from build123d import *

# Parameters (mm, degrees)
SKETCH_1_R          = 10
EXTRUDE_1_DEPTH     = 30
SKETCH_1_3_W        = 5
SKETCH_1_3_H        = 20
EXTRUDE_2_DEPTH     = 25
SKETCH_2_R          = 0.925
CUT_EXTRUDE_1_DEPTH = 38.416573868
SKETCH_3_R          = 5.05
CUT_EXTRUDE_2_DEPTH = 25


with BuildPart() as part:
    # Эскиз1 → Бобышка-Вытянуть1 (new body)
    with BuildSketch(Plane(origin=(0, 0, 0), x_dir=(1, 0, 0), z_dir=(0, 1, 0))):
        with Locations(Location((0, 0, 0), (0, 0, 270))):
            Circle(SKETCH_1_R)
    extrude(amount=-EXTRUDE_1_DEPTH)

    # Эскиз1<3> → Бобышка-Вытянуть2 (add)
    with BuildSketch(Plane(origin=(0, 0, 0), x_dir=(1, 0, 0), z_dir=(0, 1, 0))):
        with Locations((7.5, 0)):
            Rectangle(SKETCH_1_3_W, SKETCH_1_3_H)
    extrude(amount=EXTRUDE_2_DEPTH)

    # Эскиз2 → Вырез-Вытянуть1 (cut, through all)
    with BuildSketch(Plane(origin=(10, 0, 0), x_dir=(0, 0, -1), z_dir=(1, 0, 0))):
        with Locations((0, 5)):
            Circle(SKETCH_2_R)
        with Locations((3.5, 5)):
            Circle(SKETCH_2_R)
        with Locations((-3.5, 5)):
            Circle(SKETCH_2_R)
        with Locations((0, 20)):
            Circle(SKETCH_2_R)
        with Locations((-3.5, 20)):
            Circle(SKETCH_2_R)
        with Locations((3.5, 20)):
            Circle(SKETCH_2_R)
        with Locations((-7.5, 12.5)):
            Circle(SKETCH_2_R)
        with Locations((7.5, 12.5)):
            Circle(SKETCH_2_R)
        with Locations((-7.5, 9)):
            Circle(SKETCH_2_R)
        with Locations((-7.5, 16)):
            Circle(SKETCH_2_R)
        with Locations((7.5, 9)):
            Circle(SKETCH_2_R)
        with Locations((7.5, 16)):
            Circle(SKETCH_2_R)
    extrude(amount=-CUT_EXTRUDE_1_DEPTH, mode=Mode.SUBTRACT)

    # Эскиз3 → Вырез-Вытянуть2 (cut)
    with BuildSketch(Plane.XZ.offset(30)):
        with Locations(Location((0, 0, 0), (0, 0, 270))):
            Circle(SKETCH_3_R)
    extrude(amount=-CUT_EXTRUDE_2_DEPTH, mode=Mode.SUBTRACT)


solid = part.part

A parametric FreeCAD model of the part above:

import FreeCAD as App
import Part
import Sketcher

doc = App.newDocument("Part")
body = doc.addObject("PartDesign::Body", "Body")

# Sketch on XZ plane
sketch1 = body.newObject("Sketcher::SketchObject", "Sketch")
sketch1.AttachmentSupport = (doc.getObject("XZ_Plane"), [""])
sketch1.MapMode = "FlatFace"
sketch1.addGeometry(Part.Circle(App.Vector(0, 0, 0), App.Vector(0, 0, 1), 10), False)
sketch1.addConstraint(Sketcher.Constraint("Coincident", 0, 3, -1, 1))
sketch1.addConstraint(Sketcher.Constraint("Diameter", 0, 20.0))
pad1 = body.newObject("PartDesign::Pad", "Pad")
pad1.Profile = sketch1
pad1.Length = 30

# Sketch on XZ plane
sketch2 = body.newObject("Sketcher::SketchObject", "Sketch001")
sketch2.AttachmentSupport = (doc.getObject("XZ_Plane"), [""])
sketch2.MapMode = "FlatFace"
sketch2.addGeometry(Part.LineSegment(App.Vector(5, -10, 0), App.Vector(5, 10, 0)), False)
sketch2.addGeometry(Part.LineSegment(App.Vector(5, 10, 0), App.Vector(10, 10, 0)), False)
sketch2.addGeometry(Part.LineSegment(App.Vector(10, 10, 0), App.Vector(10, -10, 0)), False)
sketch2.addGeometry(Part.LineSegment(App.Vector(10, -10, 0), App.Vector(5, -10, 0)), False)
sketch2.addConstraint(Sketcher.Constraint("Coincident", 0, 2, 1, 1))
sketch2.addConstraint(Sketcher.Constraint("Coincident", 1, 2, 2, 1))
sketch2.addConstraint(Sketcher.Constraint("Coincident", 2, 2, 3, 1))
sketch2.addConstraint(Sketcher.Constraint("Coincident", 3, 2, 0, 1))
sketch2.addConstraint(Sketcher.Constraint("Vertical", 0))
sketch2.addConstraint(Sketcher.Constraint("Horizontal", 1))
sketch2.addConstraint(Sketcher.Constraint("Vertical", 2))
sketch2.addConstraint(Sketcher.Constraint("Horizontal", 3))
sketch2.addConstraint(Sketcher.Constraint("DistanceX", 1, 1, 1, 2, 5.0))
sketch2.addConstraint(Sketcher.Constraint("DistanceY", 0, 1, 0, 2, 20.0))
sketch2.addConstraint(Sketcher.Constraint("DistanceX", -1, 1, 0, 2, 5.0))
sketch2.addConstraint(Sketcher.Constraint("DistanceY", -1, 1, 0, 2, 10.0))
pad2 = body.newObject("PartDesign::Pad", "Pad001")
pad2.Profile = sketch2
pad2.Length = 25
pad2.Reversed = True

# Sketch on YZ plane
sketch3 = body.newObject("Sketcher::SketchObject", "Sketch002")
sketch3.AttachmentSupport = (doc.getObject("YZ_Plane"), [""])
sketch3.MapMode = "FlatFace"
sketch3.AttachmentOffset = App.Placement(App.Vector(0, 0, 10), App.Rotation())
sketch3.addGeometry(Part.Circle(App.Vector(5, 0, 0), App.Vector(0, 0, 1), 0.925), False)
sketch3.addGeometry(Part.Circle(App.Vector(5, -3.5, 0), App.Vector(0, 0, 1), 0.925), False)
sketch3.addGeometry(Part.Circle(App.Vector(5, 3.5, 0), App.Vector(0, 0, 1), 0.925), False)
sketch3.addGeometry(Part.Circle(App.Vector(20, 0, 0), App.Vector(0, 0, 1), 0.925), False)
sketch3.addGeometry(Part.Circle(App.Vector(20, 3.5, 0), App.Vector(0, 0, 1), 0.925), False)
sketch3.addGeometry(Part.Circle(App.Vector(20, -3.5, 0), App.Vector(0, 0, 1), 0.925), False)
sketch3.addGeometry(Part.Circle(App.Vector(12.5, 7.5, 0), App.Vector(0, 0, 1), 0.925), False)
sketch3.addGeometry(Part.Circle(App.Vector(12.5, -7.5, 0), App.Vector(0, 0, 1), 0.925), False)
sketch3.addGeometry(Part.Circle(App.Vector(9, 7.5, 0), App.Vector(0, 0, 1), 0.925), False)
sketch3.addGeometry(Part.Circle(App.Vector(16, 7.5, 0), App.Vector(0, 0, 1), 0.925), False)
sketch3.addGeometry(Part.Circle(App.Vector(9, -7.5, 0), App.Vector(0, 0, 1), 0.925), False)
sketch3.addGeometry(Part.Circle(App.Vector(16, -7.5, 0), App.Vector(0, 0, 1), 0.925), False)
sketch3.addConstraint(Sketcher.Constraint("Equal", 0, 1))
sketch3.addConstraint(Sketcher.Constraint("Equal", 1, 2))
sketch3.addConstraint(Sketcher.Constraint("Equal", 2, 3))
sketch3.addConstraint(Sketcher.Constraint("Equal", 3, 4))
sketch3.addConstraint(Sketcher.Constraint("Equal", 4, 5))
sketch3.addConstraint(Sketcher.Constraint("Equal", 5, 6))
sketch3.addConstraint(Sketcher.Constraint("Equal", 6, 7))
sketch3.addConstraint(Sketcher.Constraint("Equal", 7, 8))
sketch3.addConstraint(Sketcher.Constraint("Equal", 8, 9))
sketch3.addConstraint(Sketcher.Constraint("Equal", 9, 10))
sketch3.addConstraint(Sketcher.Constraint("Equal", 10, 11))
sketch3.addConstraint(Sketcher.Constraint("Symmetric", 1, 3, 2, 3, -1))
sketch3.addConstraint(Sketcher.Constraint("Symmetric", 4, 3, 5, 3, -1))
sketch3.addConstraint(Sketcher.Constraint("Symmetric", 6, 3, 7, 3, -1))
sketch3.addConstraint(Sketcher.Constraint("Symmetric", 8, 3, 10, 3, -1))
sketch3.addConstraint(Sketcher.Constraint("Symmetric", 9, 3, 11, 3, -1))
sketch3.addConstraint(Sketcher.Constraint("PointOnObject", 0, 3, -1))
sketch3.addConstraint(Sketcher.Constraint("PointOnObject", 3, 3, -1))
sketch3.addConstraint(Sketcher.Constraint("Horizontal", 2, 3, 4, 3))
sketch3.addConstraint(Sketcher.Constraint("Horizontal", 6, 3, 8, 3))
sketch3.addConstraint(Sketcher.Constraint("Horizontal", 8, 3, 9, 3))
sketch3.addConstraint(Sketcher.Constraint("Vertical", 0, 3, 1, 3))
sketch3.addConstraint(Sketcher.Constraint("Vertical", 3, 3, 4, 3))
sketch3.addConstraint(Sketcher.Constraint("Diameter", 0, 1.85))
sketch3.addConstraint(Sketcher.Constraint("DistanceX", -1, 1, 0, 3, 5.0))
sketch3.addConstraint(Sketcher.Constraint("DistanceX", -1, 1, 3, 3, 20.0))
sketch3.addConstraint(Sketcher.Constraint("DistanceX", -1, 1, 8, 3, 9.0))
sketch3.addConstraint(Sketcher.Constraint("DistanceX", -1, 1, 9, 3, 16.0))
sketch3.addConstraint(Sketcher.Constraint("DistanceY", 1, 3, 2, 3, 7.0))
sketch3.addConstraint(Sketcher.Constraint("DistanceY", 2, 3, 6, 3, 4.0))
sketch3.addConstraint(Sketcher.Constraint("DistanceX", -1, 1, 6, 3, 12.5))
pocket1 = body.newObject("PartDesign::Pocket", "Pocket")
pocket1.Profile = sketch3
pocket1.Type = "ThroughAll"

# Sketch on XZ plane
sketch4 = body.newObject("Sketcher::SketchObject", "Sketch003")
sketch4.AttachmentSupport = (doc.getObject("XZ_Plane"), [""])
sketch4.MapMode = "FlatFace"
sketch4.AttachmentOffset = App.Placement(App.Vector(0, 0, 30), App.Rotation())
sketch4.addGeometry(Part.Circle(App.Vector(0, 0, 0), App.Vector(0, 0, 1), 5.05), False)
sketch4.addConstraint(Sketcher.Constraint("Coincident", 0, 3, -1, 1))
sketch4.addConstraint(Sketcher.Constraint("Diameter", 0, 10.1))
pocket2 = body.newObject("PartDesign::Pocket", "Pocket001")
pocket2.Profile = sketch4
pocket2.Length = 25

doc.recompute()
